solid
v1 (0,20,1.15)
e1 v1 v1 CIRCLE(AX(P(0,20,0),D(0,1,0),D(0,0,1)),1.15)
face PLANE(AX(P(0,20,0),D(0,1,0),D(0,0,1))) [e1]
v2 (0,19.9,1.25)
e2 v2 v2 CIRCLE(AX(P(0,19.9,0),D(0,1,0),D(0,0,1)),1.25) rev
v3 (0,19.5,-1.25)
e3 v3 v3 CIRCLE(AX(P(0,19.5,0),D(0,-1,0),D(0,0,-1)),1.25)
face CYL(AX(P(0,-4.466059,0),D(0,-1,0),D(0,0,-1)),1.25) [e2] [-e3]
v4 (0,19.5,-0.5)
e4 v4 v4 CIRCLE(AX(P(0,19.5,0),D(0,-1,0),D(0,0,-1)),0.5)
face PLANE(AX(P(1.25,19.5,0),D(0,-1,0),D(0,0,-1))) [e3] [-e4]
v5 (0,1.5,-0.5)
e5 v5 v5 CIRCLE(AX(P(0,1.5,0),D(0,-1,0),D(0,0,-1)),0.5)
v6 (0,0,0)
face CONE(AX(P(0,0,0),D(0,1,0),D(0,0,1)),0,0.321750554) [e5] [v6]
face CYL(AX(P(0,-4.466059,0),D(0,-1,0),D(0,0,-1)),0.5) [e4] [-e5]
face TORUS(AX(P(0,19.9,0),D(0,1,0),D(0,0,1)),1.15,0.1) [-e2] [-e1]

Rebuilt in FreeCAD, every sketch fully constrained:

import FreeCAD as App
import Part
import Sketcher

V = App.Vector
Q = App.Units.Quantity


def edges_at(feature, points):
    """Names of the edges that pass closest to the given points."""
    edges = feature.Shape.Edges
    near = lambda p: min(range(len(edges)), key=lambda i: edges[i].distToShape(Part.Vertex(*p))[0])
    return sorted({f"Edge{near(p) + 1}" for p in points})

doc = App.newDocument("Part")
body = doc.addObject("PartDesign::Body", "Body")

sketch1 = doc.addObject("Sketcher::SketchObject", "Sketch")
body.addObject(sketch1)
sketch1.AttachmentSupport = (doc.XY_Plane, [""])
sketch1.MapMode = "FlatFace"
sketch1.addGeometry([
    Part.LineSegment(V(0, 20, 0), V(0, 0, 0)),
    Part.LineSegment(V(0, 0, 0), V(0.5, 1.5, 0)),
    Part.LineSegment(V(0.5, 1.5, 0), V(0.5, 19.5, 0)),
    Part.LineSegment(V(0.5, 19.5, 0), V(1.2, 19.5, 0)),
    Part.LineSegment(V(1.2, 19.5, 0), V(1.2, 20, 0)),
    Part.LineSegment(V(1.2, 20, 0), V(0, 20, 0)),
], False)
sketch1.addConstraint([
    Sketcher.Constraint("Coincident", 0, 2, 1, 1),
    Sketcher.Constraint("Coincident", 1, 2, 2, 1),
    Sketcher.Constraint("Coincident", 2, 2, 3, 1),
    Sketcher.Constraint("Coincident", 3, 2, 4, 1),
    Sketcher.Constraint("Coincident", 4, 2, 5, 1),
    Sketcher.Constraint("Coincident", 5, 2, 0, 1),
    Sketcher.Constraint("Vertical", 0),
    Sketcher.Constraint("Vertical", 2),
    Sketcher.Constraint("Horizontal", 3),
    Sketcher.Constraint("Vertical", 4),
    Sketcher.Constraint("Horizontal", 5),
    Sketcher.Constraint("Coincident", 0, 2, -1, 1),
    Sketcher.Constraint("DistanceY", 0, 2, 0, 1, Q("20 mm")),
    Sketcher.Constraint("DistanceY", 2, 1, 2, 2, Q("18 mm")),
    Sketcher.Constraint("DistanceY", 4, 1, 4, 2, Q("0.5 mm")),
    Sketcher.Constraint("DistanceX", 3, 1, 3, 2, Q("0.75 mm")),
    Sketcher.Constraint("DistanceX", 5, 2, 5, 1, Q("1.25 mm")),
])
revolution = doc.addObject("PartDesign::Revolution", "Revolution")
body.addObject(revolution)
revolution.Profile = sketch1
revolution.ReferenceAxis = (sketch1, ["V_Axis"])
revolution.Angle = 360
doc.recompute()

fillet = doc.addObject("PartDesign::Fillet", "Fillet")
body.addObject(fillet)
fillet.Base = (revolution, edges_at(revolution, [(0, 20, 1.25)]))
fillet.Radius = 0.1

doc.recompute()
